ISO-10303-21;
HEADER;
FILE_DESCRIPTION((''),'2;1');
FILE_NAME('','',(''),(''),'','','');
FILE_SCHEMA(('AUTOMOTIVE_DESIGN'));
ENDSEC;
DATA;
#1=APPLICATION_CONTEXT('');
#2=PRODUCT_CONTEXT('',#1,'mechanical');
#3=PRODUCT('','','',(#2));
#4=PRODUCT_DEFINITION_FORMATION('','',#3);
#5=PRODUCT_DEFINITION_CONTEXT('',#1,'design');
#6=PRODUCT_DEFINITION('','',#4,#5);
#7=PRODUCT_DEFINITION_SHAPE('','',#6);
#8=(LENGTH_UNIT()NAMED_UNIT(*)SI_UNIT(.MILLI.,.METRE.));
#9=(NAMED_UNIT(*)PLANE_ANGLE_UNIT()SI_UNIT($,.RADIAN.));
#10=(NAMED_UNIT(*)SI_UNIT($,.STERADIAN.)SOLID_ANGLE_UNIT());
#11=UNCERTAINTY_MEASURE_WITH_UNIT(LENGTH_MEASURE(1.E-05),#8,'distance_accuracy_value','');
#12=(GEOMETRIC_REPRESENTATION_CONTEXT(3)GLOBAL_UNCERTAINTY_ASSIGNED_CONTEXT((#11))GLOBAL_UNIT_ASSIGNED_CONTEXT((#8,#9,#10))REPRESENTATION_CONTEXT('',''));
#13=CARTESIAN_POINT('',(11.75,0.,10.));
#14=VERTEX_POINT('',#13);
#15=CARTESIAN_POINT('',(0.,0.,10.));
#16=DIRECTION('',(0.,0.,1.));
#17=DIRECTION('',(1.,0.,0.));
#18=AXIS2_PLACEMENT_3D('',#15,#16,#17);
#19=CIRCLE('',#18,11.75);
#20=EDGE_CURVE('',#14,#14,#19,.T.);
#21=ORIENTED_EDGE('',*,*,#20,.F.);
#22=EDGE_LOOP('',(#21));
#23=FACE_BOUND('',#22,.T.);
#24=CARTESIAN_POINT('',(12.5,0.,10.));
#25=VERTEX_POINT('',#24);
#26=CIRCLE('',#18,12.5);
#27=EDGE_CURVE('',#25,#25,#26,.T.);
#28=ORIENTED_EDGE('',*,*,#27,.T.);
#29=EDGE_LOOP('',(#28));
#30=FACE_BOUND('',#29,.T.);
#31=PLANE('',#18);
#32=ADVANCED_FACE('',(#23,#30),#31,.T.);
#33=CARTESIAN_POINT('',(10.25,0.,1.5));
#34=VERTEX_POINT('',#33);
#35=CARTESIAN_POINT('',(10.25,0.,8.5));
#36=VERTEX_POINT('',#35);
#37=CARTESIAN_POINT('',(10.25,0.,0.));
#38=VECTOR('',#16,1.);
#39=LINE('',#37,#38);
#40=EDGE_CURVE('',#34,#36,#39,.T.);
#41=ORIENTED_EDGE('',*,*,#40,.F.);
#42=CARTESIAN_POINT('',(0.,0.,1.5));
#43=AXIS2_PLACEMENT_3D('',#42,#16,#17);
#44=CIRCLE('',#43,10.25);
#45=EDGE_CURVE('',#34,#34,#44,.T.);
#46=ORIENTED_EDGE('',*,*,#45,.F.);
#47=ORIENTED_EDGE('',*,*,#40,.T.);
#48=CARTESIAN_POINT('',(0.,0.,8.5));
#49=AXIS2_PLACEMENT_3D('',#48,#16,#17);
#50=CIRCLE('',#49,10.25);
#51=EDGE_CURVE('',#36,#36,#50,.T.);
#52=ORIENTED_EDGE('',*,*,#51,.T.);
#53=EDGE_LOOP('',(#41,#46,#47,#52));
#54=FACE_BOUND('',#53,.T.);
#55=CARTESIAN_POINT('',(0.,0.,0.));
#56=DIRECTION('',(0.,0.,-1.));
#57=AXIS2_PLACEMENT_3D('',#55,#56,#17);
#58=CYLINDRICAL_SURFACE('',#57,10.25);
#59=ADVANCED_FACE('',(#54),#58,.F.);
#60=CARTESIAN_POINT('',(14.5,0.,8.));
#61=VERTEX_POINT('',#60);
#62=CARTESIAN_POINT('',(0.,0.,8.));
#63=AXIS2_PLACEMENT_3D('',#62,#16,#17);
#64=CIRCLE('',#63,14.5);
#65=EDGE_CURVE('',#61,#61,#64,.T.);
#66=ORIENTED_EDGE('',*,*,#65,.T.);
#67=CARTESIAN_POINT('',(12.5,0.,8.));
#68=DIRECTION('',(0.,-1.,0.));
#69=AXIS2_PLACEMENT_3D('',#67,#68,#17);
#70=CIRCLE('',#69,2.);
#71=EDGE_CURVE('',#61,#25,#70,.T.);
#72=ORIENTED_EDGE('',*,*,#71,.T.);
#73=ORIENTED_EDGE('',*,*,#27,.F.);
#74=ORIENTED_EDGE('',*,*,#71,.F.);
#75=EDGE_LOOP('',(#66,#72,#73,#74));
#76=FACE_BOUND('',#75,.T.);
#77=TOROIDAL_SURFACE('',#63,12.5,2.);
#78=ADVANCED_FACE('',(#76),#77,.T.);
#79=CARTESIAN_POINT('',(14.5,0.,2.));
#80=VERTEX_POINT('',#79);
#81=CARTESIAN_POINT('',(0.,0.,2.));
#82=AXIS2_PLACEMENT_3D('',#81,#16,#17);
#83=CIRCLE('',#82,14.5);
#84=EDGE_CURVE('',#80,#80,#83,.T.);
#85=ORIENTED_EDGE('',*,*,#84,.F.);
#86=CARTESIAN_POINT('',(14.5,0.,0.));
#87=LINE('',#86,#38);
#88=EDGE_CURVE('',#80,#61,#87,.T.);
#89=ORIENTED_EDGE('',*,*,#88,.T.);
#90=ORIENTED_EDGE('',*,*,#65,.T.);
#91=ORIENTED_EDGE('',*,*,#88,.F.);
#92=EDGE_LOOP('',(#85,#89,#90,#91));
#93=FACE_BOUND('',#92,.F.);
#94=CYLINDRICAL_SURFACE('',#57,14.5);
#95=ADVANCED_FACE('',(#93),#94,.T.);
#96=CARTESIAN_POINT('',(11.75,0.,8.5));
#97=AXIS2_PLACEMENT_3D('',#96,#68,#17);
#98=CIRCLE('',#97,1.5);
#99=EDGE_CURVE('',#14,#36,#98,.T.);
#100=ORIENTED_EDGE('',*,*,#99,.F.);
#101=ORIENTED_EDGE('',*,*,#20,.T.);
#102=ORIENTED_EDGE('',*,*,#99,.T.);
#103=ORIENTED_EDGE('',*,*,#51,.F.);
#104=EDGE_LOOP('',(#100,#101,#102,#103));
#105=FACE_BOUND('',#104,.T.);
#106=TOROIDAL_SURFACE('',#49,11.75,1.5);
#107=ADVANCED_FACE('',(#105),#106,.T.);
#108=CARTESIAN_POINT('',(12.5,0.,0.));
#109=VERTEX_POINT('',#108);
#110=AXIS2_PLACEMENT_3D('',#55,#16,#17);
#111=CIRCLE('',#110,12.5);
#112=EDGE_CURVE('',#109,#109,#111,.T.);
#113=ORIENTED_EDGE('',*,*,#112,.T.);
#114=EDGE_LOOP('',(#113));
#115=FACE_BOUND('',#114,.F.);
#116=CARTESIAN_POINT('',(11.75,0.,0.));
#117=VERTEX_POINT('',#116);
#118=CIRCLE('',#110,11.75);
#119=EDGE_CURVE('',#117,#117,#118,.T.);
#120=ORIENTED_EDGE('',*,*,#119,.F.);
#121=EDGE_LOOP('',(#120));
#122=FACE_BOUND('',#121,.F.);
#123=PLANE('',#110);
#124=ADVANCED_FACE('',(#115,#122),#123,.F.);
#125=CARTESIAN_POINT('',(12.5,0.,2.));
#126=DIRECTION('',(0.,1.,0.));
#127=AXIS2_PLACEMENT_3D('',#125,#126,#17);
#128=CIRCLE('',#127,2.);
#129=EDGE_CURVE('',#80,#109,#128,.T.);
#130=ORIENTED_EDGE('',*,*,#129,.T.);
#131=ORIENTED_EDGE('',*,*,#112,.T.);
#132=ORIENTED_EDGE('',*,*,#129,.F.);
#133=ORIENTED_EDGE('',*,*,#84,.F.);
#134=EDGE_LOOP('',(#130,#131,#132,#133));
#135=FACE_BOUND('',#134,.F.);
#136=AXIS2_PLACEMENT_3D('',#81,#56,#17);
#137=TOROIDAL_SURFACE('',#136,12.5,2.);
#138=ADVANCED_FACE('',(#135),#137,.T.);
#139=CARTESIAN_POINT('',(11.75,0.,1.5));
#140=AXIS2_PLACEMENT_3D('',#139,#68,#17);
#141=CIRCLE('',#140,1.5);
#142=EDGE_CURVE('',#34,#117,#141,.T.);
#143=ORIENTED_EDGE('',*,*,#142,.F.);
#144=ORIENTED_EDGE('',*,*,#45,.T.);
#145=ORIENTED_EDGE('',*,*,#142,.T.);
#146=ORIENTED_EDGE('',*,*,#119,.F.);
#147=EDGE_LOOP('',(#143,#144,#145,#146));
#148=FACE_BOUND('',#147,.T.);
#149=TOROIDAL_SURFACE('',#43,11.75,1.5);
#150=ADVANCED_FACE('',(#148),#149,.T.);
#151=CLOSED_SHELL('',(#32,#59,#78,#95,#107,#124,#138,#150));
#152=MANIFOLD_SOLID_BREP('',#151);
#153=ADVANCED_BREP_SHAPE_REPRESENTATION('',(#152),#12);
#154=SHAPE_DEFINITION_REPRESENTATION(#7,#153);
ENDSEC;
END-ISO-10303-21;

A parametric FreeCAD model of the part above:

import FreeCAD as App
import Part
import Sketcher


def edges_at(feature, points):
    """Names of the edges that pass closest to the given points."""
    edges = feature.Shape.Edges
    near = lambda p: min(range(len(edges)), key=lambda i: edges[i].distToShape(Part.Vertex(*p))[0])
    return sorted({f"Edge{near(p) + 1}" for p in points})

doc = App.newDocument("Part")
params = doc.addObject("Spreadsheet::Sheet", "Params")
for row, (alias, value) in enumerate([
    ("sketch1_diameter", "20.5 mm"),
    ("sketch1_diameter2", "29 mm"),
    ("pad1_length", "10 mm"),
    ("fillet_radius", "2 mm"),
    ("fillet2_radius", "2 mm"),
    ("fillet3_radius", "1.5 mm"),
    ("fillet4_radius", "1.5 mm"),
], start=1):
    params.set(f"A{row}", alias)
    params.set(f"B{row}", "=" + value)
    params.setAlias(f"B{row}", alias)

body = doc.addObject("PartDesign::Body", "Body")

sketch1 = body.newObject("Sketcher::SketchObject", "Sketch")
sketch1.AttachmentSupport = (doc.getObject("XY_Plane"), [""])
sketch1.MapMode = "FlatFace"
sketch1.addGeometry(Part.Circle(App.Vector(0, 0, 0), App.Vector(0, 0, 1), 14), False)
sketch1.addGeometry(Part.Circle(App.Vector(0, 0, 0), App.Vector(0, 0, 1), 10), False)
sketch1.addConstraint(Sketcher.Constraint("Coincident", 0, 3, -1, 1))
sketch1.addConstraint(Sketcher.Constraint("Coincident", 1, 3, -1, 1))
sketch1.addConstraint(Sketcher.Constraint("Diameter", 1, 20.5))
sketch1.addConstraint(Sketcher.Constraint("Diameter", 0, 29.0))
sketch1.setExpression("Constraints[2]", "Params.sketch1_diameter")
sketch1.setExpression("Constraints[3]", "Params.sketch1_diameter2")
pad1 = body.newObject("PartDesign::Pad", "Pad")
pad1.Profile = sketch1
pad1.setExpression("Length", "Params.pad1_length")
doc.recompute()

fillet = body.newObject("PartDesign::Fillet", "Fillet")
fillet.Base = (pad1, edges_at(pad1, [(-13.519, -5.243, 10)]))
fillet.setExpression("Radius", "Params.fillet_radius")
doc.recompute()

fillet2 = body.newObject("PartDesign::Fillet", "Fillet001")
fillet2.Base = (fillet, edges_at(fillet, [(-13.519, -5.243, 0)]))
fillet2.setExpression("Radius", "Params.fillet2_radius")
doc.recompute()

fillet3 = body.newObject("PartDesign::Fillet", "Fillet002")
fillet3.Base = (fillet2, edges_at(fillet2, [(-9.556, 3.707, 10)]))
fillet3.setExpression("Radius", "Params.fillet3_radius")
doc.recompute()

fillet4 = body.newObject("PartDesign::Fillet", "Fillet003")
fillet4.Base = (fillet3, edges_at(fillet3, [(-9.556, 3.707, 0)]))
fillet4.setExpression("Radius", "Params.fillet4_radius")

doc.recompute()
